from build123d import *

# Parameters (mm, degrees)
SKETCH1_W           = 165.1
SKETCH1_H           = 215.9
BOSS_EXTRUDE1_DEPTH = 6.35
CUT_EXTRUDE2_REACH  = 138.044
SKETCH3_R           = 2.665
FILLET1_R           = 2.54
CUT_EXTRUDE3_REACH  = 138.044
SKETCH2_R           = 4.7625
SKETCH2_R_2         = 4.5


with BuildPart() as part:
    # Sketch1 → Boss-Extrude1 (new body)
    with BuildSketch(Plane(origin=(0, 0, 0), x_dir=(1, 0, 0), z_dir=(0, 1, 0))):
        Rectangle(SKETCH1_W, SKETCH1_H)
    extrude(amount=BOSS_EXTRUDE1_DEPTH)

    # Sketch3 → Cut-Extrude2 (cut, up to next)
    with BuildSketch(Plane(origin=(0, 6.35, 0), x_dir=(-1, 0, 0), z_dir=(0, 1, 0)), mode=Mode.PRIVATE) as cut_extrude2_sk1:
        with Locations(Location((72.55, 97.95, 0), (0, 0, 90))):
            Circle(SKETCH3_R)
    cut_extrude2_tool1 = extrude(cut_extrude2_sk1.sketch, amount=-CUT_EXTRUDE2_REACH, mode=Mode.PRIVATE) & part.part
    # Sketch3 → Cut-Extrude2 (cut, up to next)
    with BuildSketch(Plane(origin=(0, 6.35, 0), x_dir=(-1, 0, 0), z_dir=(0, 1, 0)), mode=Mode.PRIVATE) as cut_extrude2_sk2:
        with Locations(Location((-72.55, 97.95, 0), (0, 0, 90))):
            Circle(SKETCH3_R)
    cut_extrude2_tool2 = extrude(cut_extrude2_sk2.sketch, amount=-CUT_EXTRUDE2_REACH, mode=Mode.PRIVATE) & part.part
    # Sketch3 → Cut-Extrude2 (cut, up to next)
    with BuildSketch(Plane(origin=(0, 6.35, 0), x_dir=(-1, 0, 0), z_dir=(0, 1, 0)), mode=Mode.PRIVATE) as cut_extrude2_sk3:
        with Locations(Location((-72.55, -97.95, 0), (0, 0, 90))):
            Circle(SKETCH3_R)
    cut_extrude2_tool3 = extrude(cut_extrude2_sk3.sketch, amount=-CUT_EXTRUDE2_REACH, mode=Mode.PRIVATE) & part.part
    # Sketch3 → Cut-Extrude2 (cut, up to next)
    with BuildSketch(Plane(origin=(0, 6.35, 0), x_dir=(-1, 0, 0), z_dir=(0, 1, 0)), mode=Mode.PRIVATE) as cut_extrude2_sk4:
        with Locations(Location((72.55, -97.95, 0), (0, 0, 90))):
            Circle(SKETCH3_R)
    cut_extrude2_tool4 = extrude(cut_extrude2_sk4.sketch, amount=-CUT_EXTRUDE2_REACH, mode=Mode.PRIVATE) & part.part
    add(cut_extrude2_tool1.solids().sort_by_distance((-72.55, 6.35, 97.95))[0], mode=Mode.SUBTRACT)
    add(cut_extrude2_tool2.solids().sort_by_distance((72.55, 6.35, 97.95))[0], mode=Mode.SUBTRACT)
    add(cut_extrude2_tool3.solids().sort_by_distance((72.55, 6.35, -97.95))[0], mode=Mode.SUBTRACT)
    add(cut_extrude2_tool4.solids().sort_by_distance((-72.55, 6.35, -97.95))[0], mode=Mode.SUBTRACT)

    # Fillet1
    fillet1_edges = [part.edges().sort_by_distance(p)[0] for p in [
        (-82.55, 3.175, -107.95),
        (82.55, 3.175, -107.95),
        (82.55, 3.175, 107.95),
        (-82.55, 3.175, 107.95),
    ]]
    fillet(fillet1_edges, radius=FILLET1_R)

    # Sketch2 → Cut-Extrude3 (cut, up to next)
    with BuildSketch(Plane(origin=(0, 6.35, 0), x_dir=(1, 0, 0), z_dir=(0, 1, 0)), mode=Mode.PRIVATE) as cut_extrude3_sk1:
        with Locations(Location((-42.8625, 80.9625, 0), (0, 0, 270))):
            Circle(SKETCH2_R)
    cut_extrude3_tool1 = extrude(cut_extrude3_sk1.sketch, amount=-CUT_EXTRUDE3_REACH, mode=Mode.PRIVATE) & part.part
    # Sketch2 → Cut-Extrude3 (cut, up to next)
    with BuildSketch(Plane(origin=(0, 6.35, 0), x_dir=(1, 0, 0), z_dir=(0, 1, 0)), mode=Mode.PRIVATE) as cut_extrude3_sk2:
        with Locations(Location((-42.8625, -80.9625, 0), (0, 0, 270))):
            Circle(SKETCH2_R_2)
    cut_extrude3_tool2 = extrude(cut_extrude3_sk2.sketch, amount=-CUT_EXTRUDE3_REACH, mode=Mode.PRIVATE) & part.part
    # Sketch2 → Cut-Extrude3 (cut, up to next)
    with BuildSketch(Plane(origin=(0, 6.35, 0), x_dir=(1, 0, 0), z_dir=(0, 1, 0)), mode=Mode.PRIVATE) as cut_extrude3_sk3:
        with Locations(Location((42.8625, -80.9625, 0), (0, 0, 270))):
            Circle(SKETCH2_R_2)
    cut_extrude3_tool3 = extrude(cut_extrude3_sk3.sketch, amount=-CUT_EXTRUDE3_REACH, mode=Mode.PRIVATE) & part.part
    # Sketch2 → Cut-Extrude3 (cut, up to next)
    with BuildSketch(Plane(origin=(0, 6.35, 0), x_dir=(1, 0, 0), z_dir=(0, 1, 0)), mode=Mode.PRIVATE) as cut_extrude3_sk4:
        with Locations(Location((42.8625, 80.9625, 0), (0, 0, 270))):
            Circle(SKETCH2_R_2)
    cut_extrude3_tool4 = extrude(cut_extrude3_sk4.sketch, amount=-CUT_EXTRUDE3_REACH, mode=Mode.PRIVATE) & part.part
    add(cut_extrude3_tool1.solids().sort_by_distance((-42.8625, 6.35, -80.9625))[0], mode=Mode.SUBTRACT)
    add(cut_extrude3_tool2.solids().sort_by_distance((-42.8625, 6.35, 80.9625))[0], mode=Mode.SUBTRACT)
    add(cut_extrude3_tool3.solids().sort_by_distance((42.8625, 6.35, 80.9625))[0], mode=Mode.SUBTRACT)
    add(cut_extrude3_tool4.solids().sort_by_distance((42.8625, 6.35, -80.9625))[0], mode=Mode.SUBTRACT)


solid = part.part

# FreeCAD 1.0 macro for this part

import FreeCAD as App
import Part
import Sketcher
Q = App.Units.Quantity


def edges_at(feature, points):
    """Names of the edges that pass closest to the given points."""
    edges = feature.Shape.Edges
    near = lambda p: min(range(len(edges)), key=lambda i: edges[i].distToShape(Part.Vertex(*p))[0])
    return sorted({f"Edge{near(p) + 1}" for p in points})


def add_polygon(sketch, points):
    """Adds a closed chain of lines whose ends are joined by coincident constraints."""
    first, n = sketch.GeometryCount, len(points)
    for a, b in zip(points, points[1:] + points[:1]):
        sketch.addGeometry(Part.LineSegment(App.Vector(*a, 0), App.Vector(*b, 0)), False)
    for i in range(n):
        sketch.addConstraint(Sketcher.Constraint("Coincident", first + i, 2, first + (i + 1) % n, 1))

doc = App.newDocument("Part")
body = doc.addObject("PartDesign::Body", "Body")

sketch1 = doc.addObject("Sketcher::SketchObject", "Sketch")
body.addObject(sketch1)
sketch1.AttachmentSupport = (doc.XZ_Plane, [""])
sketch1.MapMode = "FlatFace"
add_polygon(sketch1, [(-83, -108), (-83, 108), (83, 108), (83, -108)])
sketch1.addConstraint([
    Sketcher.Constraint("Vertical", 0),
    Sketcher.Constraint("Horizontal", 1),
    Sketcher.Constraint("Vertical", 2),
    Sketcher.Constraint("Horizontal", 3),
    Sketcher.Constraint("Symmetric", 0, 2, 2, 2, -1, 1),
    Sketcher.Constraint("DistanceX", 1, 1, 1, 2, Q("6.5 in")),
    Sketcher.Constraint("DistanceY", 0, 1, 0, 2, Q("8.5 in")),
])
pad1 = doc.addObject("PartDesign::Pad", "Pad")
body.addObject(pad1)
pad1.Profile = sketch1
pad1.Length = Q("0.25 in")
pad1.Reversed = True

sketch2 = doc.addObject("Sketcher::SketchObject", "Sketch001")
body.addObject(sketch2)
sketch2.AttachmentSupport = (doc.XZ_Plane, [""])
sketch2.MapMode = "FlatFace"
sketch2.AttachmentOffset = App.Placement(App.Vector(0, 0, -0.25 * 25.4), App.Rotation())
sketch2.addGeometry(Part.Circle(App.Vector(-72.5, 98, 0), App.Vector(0, 0, 1), 2.7), False)
sketch2.addConstraint([
    Sketcher.Constraint("Diameter", 0, 5.33),
    Sketcher.Constraint("DistanceX", 0, 3, -1, 1, 72.55),
    Sketcher.Constraint("DistanceY", -1, 1, 0, 3, 97.95),
])
pocket1 = doc.addObject("PartDesign::Pocket", "Pocket")
body.addObject(pocket1)
pocket1.Profile = sketch2
pocket1.Type = "UpToFirst"
pocket1.Reversed = True

sketch3 = doc.addObject("Sketcher::SketchObject", "Sketch002")
body.addObject(sketch3)
sketch3.AttachmentSupport = (doc.XZ_Plane, [""])
sketch3.MapMode = "FlatFace"
sketch3.AttachmentOffset = App.Placement(App.Vector(0, 0, -0.25 * 25.4), App.Rotation())
sketch3.addGeometry(Part.Circle(App.Vector(72.5, 98, 0), App.Vector(0, 0, 1), 2.7), False)
sketch3.addConstraint([
    Sketcher.Constraint("Diameter", 0, 5.33),
    Sketcher.Constraint("DistanceX", -1, 1, 0, 3, 72.55),
    Sketcher.Constraint("DistanceY", -1, 1, 0, 3, 97.95),
])
pocket2 = doc.addObject("PartDesign::Pocket", "Pocket001")
body.addObject(pocket2)
pocket2.Profile = sketch3
pocket2.Type = "UpToFirst"
pocket2.Reversed = True

sketch4 = doc.addObject("Sketcher::SketchObject", "Sketch003")
body.addObject(sketch4)
sketch4.AttachmentSupport = (doc.XZ_Plane, [""])
sketch4.MapMode = "FlatFace"
sketch4.AttachmentOffset = App.Placement(App.Vector(0, 0, -0.25 * 25.4), App.Rotation())
sketch4.addGeometry(Part.Circle(App.Vector(72.5, -98, 0), App.Vector(0, 0, 1), 2.7), False)
sketch4.addConstraint([
    Sketcher.Constraint("Diameter", 0, 5.33),
    Sketcher.Constraint("DistanceX", -1, 1, 0, 3, 72.55),
    Sketcher.Constraint("DistanceY", 0, 3, -1, 1, 97.95),
])
pocket3 = doc.addObject("PartDesign::Pocket", "Pocket002")
body.addObject(pocket3)
pocket3.Profile = sketch4
pocket3.Type = "UpToFirst"
pocket3.Reversed = True

sketch5 = doc.addObject("Sketcher::SketchObject", "Sketch004")
body.addObject(sketch5)
sketch5.AttachmentSupport = (doc.XZ_Plane, [""])
sketch5.MapMode = "FlatFace"
sketch5.AttachmentOffset = App.Placement(App.Vector(0, 0, -0.25 * 25.4), App.Rotation())
sketch5.addGeometry(Part.Circle(App.Vector(-72.5, -98, 0), App.Vector(0, 0, 1), 2.7), False)
sketch5.addConstraint([
    Sketcher.Constraint("Diameter", 0, 5.33),
    Sketcher.Constraint("DistanceX", 0, 3, -1, 1, 72.55),
    Sketcher.Constraint("DistanceY", 0, 3, -1, 1, 97.95),
])
pocket4 = doc.addObject("PartDesign::Pocket", "Pocket003")
body.addObject(pocket4)
pocket4.Profile = sketch5
pocket4.Type = "UpToFirst"
pocket4.Reversed = True
doc.recompute()

fillet = doc.addObject("PartDesign::Fillet", "Fillet")
body.addObject(fillet)
fillet.Base = (pocket4, edges_at(pocket4, [
    (-82.55, 3.175, -107.95),
    (82.55, 3.175, -107.95),
    (82.55, 3.175, 107.95),
    (-82.55, 3.175, 107.95),
]))
fillet.Radius = Q("0.1 in")

sketch6 = doc.addObject("Sketcher::SketchObject", "Sketch005")
body.addObject(sketch6)
sketch6.AttachmentSupport = (doc.XZ_Plane, [""])
sketch6.MapMode = "FlatFace"
sketch6.AttachmentOffset = App.Placement(App.Vector(0, 0, -0.25 * 25.4), App.Rotation())
sketch6.addGeometry(Part.Circle(App.Vector(-42.9, -81, 0), App.Vector(0, 0, 1), 4.8), False)
sketch6.addConstraint([
    Sketcher.Constraint("Diameter", 0, Q("0.375 in")),
    Sketcher.Constraint("DistanceX", 0, 3, -1, 1, Q("1.6875 in")),
    Sketcher.Constraint("DistanceY", 0, 3, -1, 1, Q("3.1875 in")),
])
pocket5 = doc.addObject("PartDesign::Pocket", "Pocket004")
body.addObject(pocket5)
pocket5.Profile = sketch6
pocket5.Type = "UpToFirst"
pocket5.Reversed = True

sketch7 = doc.addObject("Sketcher::SketchObject", "Sketch006")
body.addObject(sketch7)
sketch7.AttachmentSupport = (doc.XZ_Plane, [""])
sketch7.MapMode = "FlatFace"
sketch7.AttachmentOffset = App.Placement(App.Vector(0, 0, -0.25 * 25.4), App.Rotation())
sketch7.addGeometry(Part.Circle(App.Vector(-42.9, 81, 0), App.Vector(0, 0, 1), 4.5), False)
sketch7.addConstraint([
    Sketcher.Constraint("Diameter", 0, 9.0),
    Sketcher.Constraint("DistanceX", 0, 3, -1, 1, Q("1.6875 in")),
    Sketcher.Constraint("DistanceY", -1, 1, 0, 3, Q("3.1875 in")),
])
pocket6 = doc.addObject("PartDesign::Pocket", "Pocket005")
body.addObject(pocket6)
pocket6.Profile = sketch7
pocket6.Type = "UpToFirst"
pocket6.Reversed = True

sketch8 = doc.addObject("Sketcher::SketchObject", "Sketch007")
body.addObject(sketch8)
sketch8.AttachmentSupport = (doc.XZ_Plane, [""])
sketch8.MapMode = "FlatFace"
sketch8.AttachmentOffset = App.Placement(App.Vector(0, 0, -0.25 * 25.4), App.Rotation())
sketch8.addGeometry(Part.Circle(App.Vector(42.9, 81, 0), App.Vector(0, 0, 1), 4.5), False)
sketch8.addConstraint([
    Sketcher.Constraint("Diameter", 0, 9.0),
    Sketcher.Constraint("DistanceX", -1, 1, 0, 3, Q("1.6875 in")),
    Sketcher.Constraint("DistanceY", -1, 1, 0, 3, Q("3.1875 in")),
])
pocket7 = doc.addObject("PartDesign::Pocket", "Pocket006")
body.addObject(pocket7)
pocket7.Profile = sketch8
pocket7.Type = "UpToFirst"
pocket7.Reversed = True

sketch9 = doc.addObject("Sketcher::SketchObject", "Sketch008")
body.addObject(sketch9)
sketch9.AttachmentSupport = (doc.XZ_Plane, [""])
sketch9.MapMode = "FlatFace"
sketch9.AttachmentOffset = App.Placement(App.Vector(0, 0, -0.25 * 25.4), App.Rotation())
sketch9.addGeometry(Part.Circle(App.Vector(42.9, -81, 0), App.Vector(0, 0, 1), 4.5), False)
sketch9.addConstraint([
    Sketcher.Constraint("Diameter", 0, 9.0),
    Sketcher.Constraint("DistanceX", -1, 1, 0, 3, Q("1.6875 in")),
    Sketcher.Constraint("DistanceY", 0, 3, -1, 1, Q("3.1875 in")),
])
pocket8 = doc.addObject("PartDesign::Pocket", "Pocket007")
body.addObject(pocket8)
pocket8.Profile = sketch9
pocket8.Type = "UpToFirst"
pocket8.Reversed = True

doc.recompute()
